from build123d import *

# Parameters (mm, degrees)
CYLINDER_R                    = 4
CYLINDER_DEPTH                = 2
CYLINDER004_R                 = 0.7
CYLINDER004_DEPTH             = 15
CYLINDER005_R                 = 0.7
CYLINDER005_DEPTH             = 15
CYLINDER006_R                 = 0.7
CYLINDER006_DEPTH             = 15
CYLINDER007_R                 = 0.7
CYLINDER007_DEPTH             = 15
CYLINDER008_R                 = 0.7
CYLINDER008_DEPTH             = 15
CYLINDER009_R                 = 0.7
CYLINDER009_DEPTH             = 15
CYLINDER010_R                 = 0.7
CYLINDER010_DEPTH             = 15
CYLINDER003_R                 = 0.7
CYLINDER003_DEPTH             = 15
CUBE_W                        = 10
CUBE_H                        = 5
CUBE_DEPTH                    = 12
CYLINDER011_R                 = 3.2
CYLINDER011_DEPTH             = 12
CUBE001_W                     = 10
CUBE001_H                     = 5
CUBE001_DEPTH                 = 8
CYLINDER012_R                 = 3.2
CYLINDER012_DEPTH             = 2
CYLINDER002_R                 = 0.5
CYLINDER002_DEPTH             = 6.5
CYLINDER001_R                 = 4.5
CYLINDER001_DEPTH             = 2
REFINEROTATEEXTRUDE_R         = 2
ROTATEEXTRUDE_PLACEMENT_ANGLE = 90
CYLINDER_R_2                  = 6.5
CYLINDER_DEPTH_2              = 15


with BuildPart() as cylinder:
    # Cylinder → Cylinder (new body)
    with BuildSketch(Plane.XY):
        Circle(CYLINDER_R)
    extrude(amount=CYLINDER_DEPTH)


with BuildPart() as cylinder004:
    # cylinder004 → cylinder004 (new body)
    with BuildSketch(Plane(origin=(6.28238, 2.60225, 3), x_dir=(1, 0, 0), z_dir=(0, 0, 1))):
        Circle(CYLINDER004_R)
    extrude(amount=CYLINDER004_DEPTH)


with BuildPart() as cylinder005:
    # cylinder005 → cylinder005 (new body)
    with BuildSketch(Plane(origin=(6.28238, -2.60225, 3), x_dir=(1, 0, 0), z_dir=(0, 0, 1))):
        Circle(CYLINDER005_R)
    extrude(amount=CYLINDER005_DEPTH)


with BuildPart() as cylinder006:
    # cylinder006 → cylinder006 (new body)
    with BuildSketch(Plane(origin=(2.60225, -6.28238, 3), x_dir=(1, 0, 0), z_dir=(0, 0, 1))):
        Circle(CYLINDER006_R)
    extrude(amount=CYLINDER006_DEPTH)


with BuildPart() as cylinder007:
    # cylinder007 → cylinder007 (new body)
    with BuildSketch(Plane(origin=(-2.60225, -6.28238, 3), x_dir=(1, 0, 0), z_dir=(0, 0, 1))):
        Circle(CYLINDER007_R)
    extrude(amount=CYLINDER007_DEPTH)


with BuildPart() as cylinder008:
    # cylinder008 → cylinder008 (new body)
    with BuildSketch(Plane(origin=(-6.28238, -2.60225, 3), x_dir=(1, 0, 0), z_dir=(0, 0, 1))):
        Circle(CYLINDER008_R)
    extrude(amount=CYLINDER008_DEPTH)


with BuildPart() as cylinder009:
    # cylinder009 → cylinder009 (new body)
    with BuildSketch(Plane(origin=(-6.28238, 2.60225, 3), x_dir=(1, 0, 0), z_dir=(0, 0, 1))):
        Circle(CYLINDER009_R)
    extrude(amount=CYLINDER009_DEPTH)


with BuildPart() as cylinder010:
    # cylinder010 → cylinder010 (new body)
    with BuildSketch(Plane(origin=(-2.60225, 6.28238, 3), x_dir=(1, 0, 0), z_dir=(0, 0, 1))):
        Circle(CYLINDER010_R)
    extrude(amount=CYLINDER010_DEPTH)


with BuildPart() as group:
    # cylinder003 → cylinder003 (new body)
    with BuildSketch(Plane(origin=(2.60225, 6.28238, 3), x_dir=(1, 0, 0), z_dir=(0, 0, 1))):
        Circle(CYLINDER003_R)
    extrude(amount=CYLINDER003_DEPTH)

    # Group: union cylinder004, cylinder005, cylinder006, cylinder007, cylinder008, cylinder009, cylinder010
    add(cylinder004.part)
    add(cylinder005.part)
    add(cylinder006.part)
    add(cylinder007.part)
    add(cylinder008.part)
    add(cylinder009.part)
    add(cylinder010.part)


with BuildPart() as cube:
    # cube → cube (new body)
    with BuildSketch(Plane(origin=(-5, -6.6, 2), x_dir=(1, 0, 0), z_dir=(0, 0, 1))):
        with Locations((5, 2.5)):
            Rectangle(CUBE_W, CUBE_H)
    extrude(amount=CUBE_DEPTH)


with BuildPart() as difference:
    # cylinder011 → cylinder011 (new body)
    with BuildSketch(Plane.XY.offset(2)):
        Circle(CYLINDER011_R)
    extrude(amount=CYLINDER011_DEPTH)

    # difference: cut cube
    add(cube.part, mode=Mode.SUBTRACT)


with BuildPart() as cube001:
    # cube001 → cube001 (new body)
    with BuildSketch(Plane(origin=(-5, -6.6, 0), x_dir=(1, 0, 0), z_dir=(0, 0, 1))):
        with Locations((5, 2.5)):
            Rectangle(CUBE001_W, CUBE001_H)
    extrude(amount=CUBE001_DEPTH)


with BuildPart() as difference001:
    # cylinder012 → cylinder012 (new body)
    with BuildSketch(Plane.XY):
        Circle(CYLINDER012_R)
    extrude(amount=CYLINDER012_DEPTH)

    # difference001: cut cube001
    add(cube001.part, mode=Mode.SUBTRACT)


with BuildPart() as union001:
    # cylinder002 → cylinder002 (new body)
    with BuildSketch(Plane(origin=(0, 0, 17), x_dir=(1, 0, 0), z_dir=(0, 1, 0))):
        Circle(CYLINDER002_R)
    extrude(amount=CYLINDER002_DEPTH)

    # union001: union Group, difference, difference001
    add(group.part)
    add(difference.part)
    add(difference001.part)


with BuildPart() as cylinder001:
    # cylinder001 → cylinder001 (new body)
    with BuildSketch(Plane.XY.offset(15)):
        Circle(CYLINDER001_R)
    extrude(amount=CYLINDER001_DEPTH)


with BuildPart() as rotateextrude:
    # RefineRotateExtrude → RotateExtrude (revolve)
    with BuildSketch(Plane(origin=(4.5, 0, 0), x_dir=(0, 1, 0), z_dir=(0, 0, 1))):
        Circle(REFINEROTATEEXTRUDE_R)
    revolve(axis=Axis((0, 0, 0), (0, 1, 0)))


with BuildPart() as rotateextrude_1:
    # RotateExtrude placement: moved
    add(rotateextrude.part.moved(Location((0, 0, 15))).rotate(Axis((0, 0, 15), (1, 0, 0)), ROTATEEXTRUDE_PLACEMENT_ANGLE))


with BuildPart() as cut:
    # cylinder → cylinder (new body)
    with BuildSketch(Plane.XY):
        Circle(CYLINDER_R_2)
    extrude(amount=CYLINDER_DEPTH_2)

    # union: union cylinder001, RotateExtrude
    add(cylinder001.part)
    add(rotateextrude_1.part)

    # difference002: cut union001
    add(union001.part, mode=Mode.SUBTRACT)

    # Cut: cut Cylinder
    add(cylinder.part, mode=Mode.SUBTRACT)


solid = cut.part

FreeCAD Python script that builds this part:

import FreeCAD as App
import Part
import Sketcher

V = App.Vector
Q = App.Units.Quantity

doc = App.newDocument("Part")
body = doc.addObject("PartDesign::Body", "Body")

sketch1 = body.newObject("Sketcher::SketchObject", "Sketch")
sketch1.AttachmentSupport = (doc.getObject("XY_Plane"), [""])
sketch1.MapMode = "FlatFace"
sketch1.addGeometry(Part.Circle(V(0, 0, 0), V(0, 0, 1), 4), False)
sketch1.addConstraint([
    Sketcher.Constraint("Coincident", 0, 3, -1, 1),
    Sketcher.Constraint("Diameter", 0, Q("8 mm")),
])
pad1 = body.newObject("PartDesign::Pad", "Pad")
pad1.Profile = sketch1
pad1.Length = 2
body2 = doc.addObject("PartDesign::Body", "Body001")

sketch2 = body2.newObject("Sketcher::SketchObject", "Sketch001")
sketch2.AttachmentSupport = (doc.getObject("XY_Plane001"), [""])
sketch2.MapMode = "FlatFace"
sketch2.AttachmentOffset = App.Placement(V(0, 0, 3), App.Rotation())
sketch2.addGeometry(Part.Circle(V(6.3, 2.6, 0), V(0, 0, 1), 0.7), False)
sketch2.addConstraint([
    Sketcher.Constraint("Diameter", 0, Q("1.4 mm")),
    Sketcher.Constraint("DistanceX", -1, 1, 0, 3, Q("6.28238 mm")),
    Sketcher.Constraint("DistanceY", -1, 1, 0, 3, Q("2.60225 mm")),
])
pad2 = body2.newObject("PartDesign::Pad", "Pad001")
pad2.Profile = sketch2
pad2.Length = 15
body3 = doc.addObject("PartDesign::Body", "Body002")

sketch3 = body3.newObject("Sketcher::SketchObject", "Sketch002")
sketch3.AttachmentSupport = (doc.getObject("XY_Plane002"), [""])
sketch3.MapMode = "FlatFace"
sketch3.AttachmentOffset = App.Placement(V(0, 0, 3), App.Rotation())
sketch3.addGeometry(Part.Circle(V(6.3, -2.6, 0), V(0, 0, 1), 0.7), False)
sketch3.addConstraint([
    Sketcher.Constraint("Diameter", 0, Q("1.4 mm")),
    Sketcher.Constraint("DistanceX", -1, 1, 0, 3, Q("6.28238 mm")),
    Sketcher.Constraint("DistanceY", 0, 3, -1, 1, Q("2.60225 mm")),
])
pad3 = body3.newObject("PartDesign::Pad", "Pad002")
pad3.Profile = sketch3
pad3.Length = 15
body4 = doc.addObject("PartDesign::Body", "Body003")

sketch4 = body4.newObject("Sketcher::SketchObject", "Sketch003")
sketch4.AttachmentSupport = (doc.getObject("XY_Plane003"), [""])
sketch4.MapMode = "FlatFace"
sketch4.AttachmentOffset = App.Placement(V(0, 0, 3), App.Rotation())
sketch4.addGeometry(Part.Circle(V(2.6, -6.3, 0), V(0, 0, 1), 0.7), False)
sketch4.addConstraint([
    Sketcher.Constraint("Diameter", 0, Q("1.4 mm")),
    Sketcher.Constraint("DistanceX", -1, 1, 0, 3, Q("2.60225 mm")),
    Sketcher.Constraint("DistanceY", 0, 3, -1, 1, Q("6.28238 mm")),
])
pad4 = body4.newObject("PartDesign::Pad", "Pad003")
pad4.Profile = sketch4
pad4.Length = 15
body5 = doc.addObject("PartDesign::Body", "Body004")

sketch5 = body5.newObject("Sketcher::SketchObject", "Sketch004")
sketch5.AttachmentSupport = (doc.getObject("XY_Plane004"), [""])
sketch5.MapMode = "FlatFace"
sketch5.AttachmentOffset = App.Placement(V(0, 0, 3), App.Rotation())
sketch5.addGeometry(Part.Circle(V(-2.6, -6.3, 0), V(0, 0, 1), 0.7), False)
sketch5.addConstraint([
    Sketcher.Constraint("Diameter", 0, Q("1.4 mm")),
    Sketcher.Constraint("DistanceX", 0, 3, -1, 1, Q("2.60225 mm")),
    Sketcher.Constraint("DistanceY", 0, 3, -1, 1, Q("6.28238 mm")),
])
pad5 = body5.newObject("PartDesign::Pad", "Pad004")
pad5.Profile = sketch5
pad5.Length = 15
body6 = doc.addObject("PartDesign::Body", "Body005")

sketch6 = body6.newObject("Sketcher::SketchObject", "Sketch005")
sketch6.AttachmentSupport = (doc.getObject("XY_Plane005"), [""])
sketch6.MapMode = "FlatFace"
sketch6.AttachmentOffset = App.Placement(V(0, 0, 3), App.Rotation())
sketch6.addGeometry(Part.Circle(V(-6.3, -2.6, 0), V(0, 0, 1), 0.7), False)
sketch6.addConstraint([
    Sketcher.Constraint("Diameter", 0, Q("1.4 mm")),
    Sketcher.Constraint("DistanceX", 0, 3, -1, 1, Q("6.28238 mm")),
    Sketcher.Constraint("DistanceY", 0, 3, -1, 1, Q("2.60225 mm")),
])
pad6 = body6.newObject("PartDesign::Pad", "Pad005")
pad6.Profile = sketch6
pad6.Length = 15
body7 = doc.addObject("PartDesign::Body", "Body006")

sketch7 = body7.newObject("Sketcher::SketchObject", "Sketch006")
sketch7.AttachmentSupport = (doc.getObject("XY_Plane006"), [""])
sketch7.MapMode = "FlatFace"
sketch7.AttachmentOffset = App.Placement(V(0, 0, 3), App.Rotation())
sketch7.addGeometry(Part.Circle(V(-6.3, 2.6, 0), V(0, 0, 1), 0.7), False)
sketch7.addConstraint([
    Sketcher.Constraint("Diameter", 0, Q("1.4 mm")),
    Sketcher.Constraint("DistanceX", 0, 3, -1, 1, Q("6.28238 mm")),
    Sketcher.Constraint("DistanceY", -1, 1, 0, 3, Q("2.60225 mm")),
])
pad7 = body7.newObject("PartDesign::Pad", "Pad006")
pad7.Profile = sketch7
pad7.Length = 15
body8 = doc.addObject("PartDesign::Body", "Body007")

sketch8 = body8.newObject("Sketcher::SketchObject", "Sketch007")
sketch8.AttachmentSupport = (doc.getObject("XY_Plane007"), [""])
sketch8.MapMode = "FlatFace"
sketch8.AttachmentOffset = App.Placement(V(0, 0, 3), App.Rotation())
sketch8.addGeometry(Part.Circle(V(-2.6, 6.3, 0), V(0, 0, 1), 0.7), False)
sketch8.addConstraint([
    Sketcher.Constraint("Diameter", 0, Q("1.4 mm")),
    Sketcher.Constraint("DistanceX", 0, 3, -1, 1, Q("2.60225 mm")),
    Sketcher.Constraint("DistanceY", -1, 1, 0, 3, Q("6.28238 mm")),
])
pad8 = body8.newObject("PartDesign::Pad", "Pad007")
pad8.Profile = sketch8
pad8.Length = 15
body9 = doc.addObject("PartDesign::Body", "Body008")
body9.AllowCompound = True

sketch9 = body9.newObject("Sketcher::SketchObject", "Sketch008")
sketch9.AttachmentSupport = (doc.getObject("XY_Plane008"), [""])
sketch9.MapMode = "FlatFace"
sketch9.AttachmentOffset = App.Placement(V(0, 0, 3), App.Rotation())
sketch9.addGeometry(Part.Circle(V(2.6, 6.3, 0), V(0, 0, 1), 0.7), False)
sketch9.addConstraint([
    Sketcher.Constraint("Diameter", 0, Q("1.4 mm")),
    Sketcher.Constraint("DistanceX", -1, 1, 0, 3, Q("2.60225 mm")),
    Sketcher.Constraint("DistanceY", -1, 1, 0, 3, Q("6.28238 mm")),
])
pad9 = body9.newObject("PartDesign::Pad", "Pad008")
pad9.Profile = sketch9
pad9.Length = 15
doc.recompute()

boolean = body9.newObject("PartDesign::Boolean", "Boolean")
boolean.Type = "Fuse"
boolean.addObjects([body2])
doc.recompute()

boolean2 = body9.newObject("PartDesign::Boolean", "Boolean001")
boolean2.Type = "Fuse"
boolean2.addObjects([body3])
doc.recompute()

boolean3 = body9.newObject("PartDesign::Boolean", "Boolean002")
boolean3.Type = "Fuse"
boolean3.addObjects([body4])
doc.recompute()

boolean4 = body9.newObject("PartDesign::Boolean", "Boolean003")
boolean4.Type = "Fuse"
boolean4.addObjects([body5])
doc.recompute()

boolean5 = body9.newObject("PartDesign::Boolean", "Boolean004")
boolean5.Type = "Fuse"
boolean5.addObjects([body6])
doc.recompute()

boolean6 = body9.newObject("PartDesign::Boolean", "Boolean005")
boolean6.Type = "Fuse"
boolean6.addObjects([body7])
doc.recompute()

boolean7 = body9.newObject("PartDesign::Boolean", "Boolean006")
boolean7.Type = "Fuse"
boolean7.addObjects([body8])
body10 = doc.addObject("PartDesign::Body", "Body009")

sketch10 = body10.newObject("Sketcher::SketchObject", "Sketch009")
sketch10.AttachmentSupport = (doc.getObject("XY_Plane009"), [""])
sketch10.MapMode = "FlatFace"
sketch10.AttachmentOffset = App.Placement(V(0, 0, 2), App.Rotation())
sketch10.addGeometry([
    Part.LineSegment(V(-5, -2, 0), V(-5, -7, 0)),
    Part.LineSegment(V(-5, -7, 0), V(5, -7, 0)),
    Part.LineSegment(V(5, -7, 0), V(5, -2, 0)),
    Part.LineSegment(V(5, -2, 0), V(-5, -2, 0)),
], False)
sketch10.addConstraint([
    Sketcher.Constraint("Coincident", 0, 2, 1, 1),
    Sketcher.Constraint("Coincident", 1, 2, 2, 1),
    Sketcher.Constraint("Coincident", 2, 2, 3, 1),
    Sketcher.Constraint("Coincident", 3, 2, 0, 1),
    Sketcher.Constraint("Vertical", 0),
    Sketcher.Constraint("Horizontal", 1),
    Sketcher.Constraint("Vertical", 2),
    Sketcher.Constraint("Horizontal", 3),
    Sketcher.Constraint("DistanceX", 1, 1, 1, 2, Q("10 mm")),
    Sketcher.Constraint("DistanceY", 0, 2, 0, 1, Q("5 mm")),
    Sketcher.Constraint("DistanceX", 0, 2, -1, 1, Q("5 mm")),
    Sketcher.Constraint("DistanceY", 0, 2, -1, 1, Q("6.6 mm")),
])
pad10 = body10.newObject("PartDesign::Pad", "Pad009")
pad10.Profile = sketch10
pad10.Length = 12
body11 = doc.addObject("PartDesign::Body", "Body010")

sketch11 = body11.newObject("Sketcher::SketchObject", "Sketch010")
sketch11.AttachmentSupport = (doc.getObject("XY_Plane010"), [""])
sketch11.MapMode = "FlatFace"
sketch11.AttachmentOffset = App.Placement(V(0, 0, 2), App.Rotation())
sketch11.addGeometry(Part.Circle(V(0, 0, 0), V(0, 0, 1), 3.2), False)
sketch11.addConstraint([
    Sketcher.Constraint("Coincident", 0, 3, -1, 1),
    Sketcher.Constraint("Diameter", 0, Q("6.4 mm")),
])
pad11 = body11.newObject("PartDesign::Pad", "Pad010")
pad11.Profile = sketch11
pad11.Length = 12
doc.recompute()

boolean8 = body11.newObject("PartDesign::Boolean", "Boolean007")
boolean8.Type = "Cut"
boolean8.addObjects([body10])
body12 = doc.addObject("PartDesign::Body", "Body011")

sketch12 = body12.newObject("Sketcher::SketchObject", "Sketch011")
sketch12.AttachmentSupport = (doc.getObject("XY_Plane011"), [""])
sketch12.MapMode = "FlatFace"
sketch12.addGeometry([
    Part.LineSegment(V(-5, -2, 0), V(-5, -7, 0)),
    Part.LineSegment(V(-5, -7, 0), V(5, -7, 0)),
    Part.LineSegment(V(5, -7, 0), V(5, -2, 0)),
    Part.LineSegment(V(5, -2, 0), V(-5, -2, 0)),
], False)
sketch12.addConstraint([
    Sketcher.Constraint("Coincident", 0, 2, 1, 1),
    Sketcher.Constraint("Coincident", 1, 2, 2, 1),
    Sketcher.Constraint("Coincident", 2, 2, 3, 1),
    Sketcher.Constraint("Coincident", 3, 2, 0, 1),
    Sketcher.Constraint("Vertical", 0),
    Sketcher.Constraint("Horizontal", 1),
    Sketcher.Constraint("Vertical", 2),
    Sketcher.Constraint("Horizontal", 3),
    Sketcher.Constraint("DistanceX", 1, 1, 1, 2, Q("10 mm")),
    Sketcher.Constraint("DistanceY", 0, 2, 0, 1, Q("5 mm")),
    Sketcher.Constraint("DistanceX", 0, 2, -1, 1, Q("5 mm")),
    Sketcher.Constraint("DistanceY", 0, 2, -1, 1, Q("6.6 mm")),
])
pad12 = body12.newObject("PartDesign::Pad", "Pad011")
pad12.Profile = sketch12
pad12.Length = 8
body13 = doc.addObject("PartDesign::Body", "Body012")

sketch13 = body13.newObject("Sketcher::SketchObject", "Sketch012")
sketch13.AttachmentSupport = (doc.getObject("XY_Plane012"), [""])
sketch13.MapMode = "FlatFace"
sketch13.addGeometry(Part.Circle(V(0, 0, 0), V(0, 0, 1), 3.2), False)
sketch13.addConstraint([
    Sketcher.Constraint("Coincident", 0, 3, -1, 1),
    Sketcher.Constraint("Diameter", 0, Q("6.4 mm")),
])
pad13 = body13.newObject("PartDesign::Pad", "Pad012")
pad13.Profile = sketch13
pad13.Length = 2
doc.recompute()

boolean9 = body13.newObject("PartDesign::Boolean", "Boolean008")
boolean9.Type = "Cut"
boolean9.addObjects([body12])
body14 = doc.addObject("PartDesign::Body", "Body013")
body14.AllowCompound = True

sketch14 = body14.newObject("Sketcher::SketchObject", "Sketch013")
sketch14.AttachmentSupport = (doc.getObject("XZ_Plane013"), [""])
sketch14.MapMode = "FlatFace"
sketch14.addGeometry(Part.Circle(V(0, 17, 0), V(0, 0, 1), 0.5), False)
sketch14.addConstraint([
    Sketcher.Constraint("PointOnObject", 0, 3, -2),
    Sketcher.Constraint("Diameter", 0, Q("1 mm")),
    Sketcher.Constraint("DistanceY", -1, 1, 0, 3, Q("17 mm")),
])
pad14 = body14.newObject("PartDesign::Pad", "Pad013")
pad14.Profile = sketch14
pad14.Length = 6.5
pad14.Reversed = True
doc.recompute()

boolean10 = body14.newObject("PartDesign::Boolean", "Boolean009")
boolean10.Type = "Fuse"
boolean10.addObjects([body9])
doc.recompute()

boolean11 = body14.newObject("PartDesign::Boolean", "Boolean010")
boolean11.Type = "Fuse"
boolean11.addObjects([body11])
doc.recompute()

boolean12 = body14.newObject("PartDesign::Boolean", "Boolean011")
boolean12.Type = "Fuse"
boolean12.addObjects([body13])
body15 = doc.addObject("PartDesign::Body", "Body014")

sketch15 = body15.newObject("Sketcher::SketchObject", "Sketch014")
sketch15.AttachmentSupport = (doc.getObject("XY_Plane014"), [""])
sketch15.MapMode = "FlatFace"
sketch15.AttachmentOffset = App.Placement(V(0, 0, 15), App.Rotation())
sketch15.addGeometry(Part.Circle(V(0, 0, 0), V(0, 0, 1), 4.5), False)
sketch15.addConstraint([
    Sketcher.Constraint("Coincident", 0, 3, -1, 1),
    Sketcher.Constraint("Diameter", 0, Q("9 mm")),
])
pad15 = body15.newObject("PartDesign::Pad", "Pad014")
pad15.Profile = sketch15
pad15.Length = 2
body16 = doc.addObject("PartDesign::Body", "Body015")

sketch16 = body16.newObject("Sketcher::SketchObject", "Sketch015")
sketch16.AttachmentSupport = (doc.getObject("XY_Plane015"), [""])
sketch16.MapMode = "FlatFace"
sketch16.addGeometry(Part.Circle(V(4.5, 0, 0), V(0, 0, 1), 2), False)
sketch16.addConstraint([
    Sketcher.Constraint("PointOnObject", 0, 3, -1),
    Sketcher.Constraint("Diameter", 0, Q("4 mm")),
    Sketcher.Constraint("DistanceX", -1, 1, 0, 3, Q("4.5 mm")),
])
revolution = body16.newObject("PartDesign::Revolution", "Revolution")
revolution.Profile = sketch16
revolution.ReferenceAxis = (sketch16, ["V_Axis"])
revolution.Angle = 360
body17 = doc.addObject("PartDesign::Body", "Body016")
doc.recompute()

body16.Placement = App.Placement(V(0, 0, 15), App.Rotation(V(1, 0, 0), 90))
boolean13 = body17.newObject("PartDesign::Boolean", "Boolean012")
boolean13.Type = "Fuse"
boolean13.addObjects([body16])
body18 = doc.addObject("PartDesign::Body", "Body017")

sketch17 = body18.newObject("Sketcher::SketchObject", "Sketch016")
sketch17.AttachmentSupport = (doc.getObject("XY_Plane017"), [""])
sketch17.MapMode = "FlatFace"
sketch17.addGeometry(Part.Circle(V(0, 0, 0), V(0, 0, 1), 6), False)
sketch17.addConstraint([
    Sketcher.Constraint("Coincident", 0, 3, -1, 1),
    Sketcher.Constraint("Diameter", 0, Q("13 mm")),
])
pad16 = body18.newObject("PartDesign::Pad", "Pad015")
pad16.Profile = sketch17
pad16.Length = 15
doc.recompute()

boolean14 = body18.newObject("PartDesign::Boolean", "Boolean013")
boolean14.Type = "Fuse"
boolean14.addObjects([body15])
doc.recompute()

boolean15 = body18.newObject("PartDesign::Boolean", "Boolean014")
boolean15.Type = "Fuse"
boolean15.addObjects([body17])
doc.recompute()

boolean16 = body18.newObject("PartDesign::Boolean", "Boolean015")
boolean16.Type = "Cut"
boolean16.addObjects([body14])
doc.recompute()

boolean17 = body18.newObject("PartDesign::Boolean", "Boolean016")
boolean17.Type = "Cut"
boolean17.addObjects([body])

doc.recompute()
